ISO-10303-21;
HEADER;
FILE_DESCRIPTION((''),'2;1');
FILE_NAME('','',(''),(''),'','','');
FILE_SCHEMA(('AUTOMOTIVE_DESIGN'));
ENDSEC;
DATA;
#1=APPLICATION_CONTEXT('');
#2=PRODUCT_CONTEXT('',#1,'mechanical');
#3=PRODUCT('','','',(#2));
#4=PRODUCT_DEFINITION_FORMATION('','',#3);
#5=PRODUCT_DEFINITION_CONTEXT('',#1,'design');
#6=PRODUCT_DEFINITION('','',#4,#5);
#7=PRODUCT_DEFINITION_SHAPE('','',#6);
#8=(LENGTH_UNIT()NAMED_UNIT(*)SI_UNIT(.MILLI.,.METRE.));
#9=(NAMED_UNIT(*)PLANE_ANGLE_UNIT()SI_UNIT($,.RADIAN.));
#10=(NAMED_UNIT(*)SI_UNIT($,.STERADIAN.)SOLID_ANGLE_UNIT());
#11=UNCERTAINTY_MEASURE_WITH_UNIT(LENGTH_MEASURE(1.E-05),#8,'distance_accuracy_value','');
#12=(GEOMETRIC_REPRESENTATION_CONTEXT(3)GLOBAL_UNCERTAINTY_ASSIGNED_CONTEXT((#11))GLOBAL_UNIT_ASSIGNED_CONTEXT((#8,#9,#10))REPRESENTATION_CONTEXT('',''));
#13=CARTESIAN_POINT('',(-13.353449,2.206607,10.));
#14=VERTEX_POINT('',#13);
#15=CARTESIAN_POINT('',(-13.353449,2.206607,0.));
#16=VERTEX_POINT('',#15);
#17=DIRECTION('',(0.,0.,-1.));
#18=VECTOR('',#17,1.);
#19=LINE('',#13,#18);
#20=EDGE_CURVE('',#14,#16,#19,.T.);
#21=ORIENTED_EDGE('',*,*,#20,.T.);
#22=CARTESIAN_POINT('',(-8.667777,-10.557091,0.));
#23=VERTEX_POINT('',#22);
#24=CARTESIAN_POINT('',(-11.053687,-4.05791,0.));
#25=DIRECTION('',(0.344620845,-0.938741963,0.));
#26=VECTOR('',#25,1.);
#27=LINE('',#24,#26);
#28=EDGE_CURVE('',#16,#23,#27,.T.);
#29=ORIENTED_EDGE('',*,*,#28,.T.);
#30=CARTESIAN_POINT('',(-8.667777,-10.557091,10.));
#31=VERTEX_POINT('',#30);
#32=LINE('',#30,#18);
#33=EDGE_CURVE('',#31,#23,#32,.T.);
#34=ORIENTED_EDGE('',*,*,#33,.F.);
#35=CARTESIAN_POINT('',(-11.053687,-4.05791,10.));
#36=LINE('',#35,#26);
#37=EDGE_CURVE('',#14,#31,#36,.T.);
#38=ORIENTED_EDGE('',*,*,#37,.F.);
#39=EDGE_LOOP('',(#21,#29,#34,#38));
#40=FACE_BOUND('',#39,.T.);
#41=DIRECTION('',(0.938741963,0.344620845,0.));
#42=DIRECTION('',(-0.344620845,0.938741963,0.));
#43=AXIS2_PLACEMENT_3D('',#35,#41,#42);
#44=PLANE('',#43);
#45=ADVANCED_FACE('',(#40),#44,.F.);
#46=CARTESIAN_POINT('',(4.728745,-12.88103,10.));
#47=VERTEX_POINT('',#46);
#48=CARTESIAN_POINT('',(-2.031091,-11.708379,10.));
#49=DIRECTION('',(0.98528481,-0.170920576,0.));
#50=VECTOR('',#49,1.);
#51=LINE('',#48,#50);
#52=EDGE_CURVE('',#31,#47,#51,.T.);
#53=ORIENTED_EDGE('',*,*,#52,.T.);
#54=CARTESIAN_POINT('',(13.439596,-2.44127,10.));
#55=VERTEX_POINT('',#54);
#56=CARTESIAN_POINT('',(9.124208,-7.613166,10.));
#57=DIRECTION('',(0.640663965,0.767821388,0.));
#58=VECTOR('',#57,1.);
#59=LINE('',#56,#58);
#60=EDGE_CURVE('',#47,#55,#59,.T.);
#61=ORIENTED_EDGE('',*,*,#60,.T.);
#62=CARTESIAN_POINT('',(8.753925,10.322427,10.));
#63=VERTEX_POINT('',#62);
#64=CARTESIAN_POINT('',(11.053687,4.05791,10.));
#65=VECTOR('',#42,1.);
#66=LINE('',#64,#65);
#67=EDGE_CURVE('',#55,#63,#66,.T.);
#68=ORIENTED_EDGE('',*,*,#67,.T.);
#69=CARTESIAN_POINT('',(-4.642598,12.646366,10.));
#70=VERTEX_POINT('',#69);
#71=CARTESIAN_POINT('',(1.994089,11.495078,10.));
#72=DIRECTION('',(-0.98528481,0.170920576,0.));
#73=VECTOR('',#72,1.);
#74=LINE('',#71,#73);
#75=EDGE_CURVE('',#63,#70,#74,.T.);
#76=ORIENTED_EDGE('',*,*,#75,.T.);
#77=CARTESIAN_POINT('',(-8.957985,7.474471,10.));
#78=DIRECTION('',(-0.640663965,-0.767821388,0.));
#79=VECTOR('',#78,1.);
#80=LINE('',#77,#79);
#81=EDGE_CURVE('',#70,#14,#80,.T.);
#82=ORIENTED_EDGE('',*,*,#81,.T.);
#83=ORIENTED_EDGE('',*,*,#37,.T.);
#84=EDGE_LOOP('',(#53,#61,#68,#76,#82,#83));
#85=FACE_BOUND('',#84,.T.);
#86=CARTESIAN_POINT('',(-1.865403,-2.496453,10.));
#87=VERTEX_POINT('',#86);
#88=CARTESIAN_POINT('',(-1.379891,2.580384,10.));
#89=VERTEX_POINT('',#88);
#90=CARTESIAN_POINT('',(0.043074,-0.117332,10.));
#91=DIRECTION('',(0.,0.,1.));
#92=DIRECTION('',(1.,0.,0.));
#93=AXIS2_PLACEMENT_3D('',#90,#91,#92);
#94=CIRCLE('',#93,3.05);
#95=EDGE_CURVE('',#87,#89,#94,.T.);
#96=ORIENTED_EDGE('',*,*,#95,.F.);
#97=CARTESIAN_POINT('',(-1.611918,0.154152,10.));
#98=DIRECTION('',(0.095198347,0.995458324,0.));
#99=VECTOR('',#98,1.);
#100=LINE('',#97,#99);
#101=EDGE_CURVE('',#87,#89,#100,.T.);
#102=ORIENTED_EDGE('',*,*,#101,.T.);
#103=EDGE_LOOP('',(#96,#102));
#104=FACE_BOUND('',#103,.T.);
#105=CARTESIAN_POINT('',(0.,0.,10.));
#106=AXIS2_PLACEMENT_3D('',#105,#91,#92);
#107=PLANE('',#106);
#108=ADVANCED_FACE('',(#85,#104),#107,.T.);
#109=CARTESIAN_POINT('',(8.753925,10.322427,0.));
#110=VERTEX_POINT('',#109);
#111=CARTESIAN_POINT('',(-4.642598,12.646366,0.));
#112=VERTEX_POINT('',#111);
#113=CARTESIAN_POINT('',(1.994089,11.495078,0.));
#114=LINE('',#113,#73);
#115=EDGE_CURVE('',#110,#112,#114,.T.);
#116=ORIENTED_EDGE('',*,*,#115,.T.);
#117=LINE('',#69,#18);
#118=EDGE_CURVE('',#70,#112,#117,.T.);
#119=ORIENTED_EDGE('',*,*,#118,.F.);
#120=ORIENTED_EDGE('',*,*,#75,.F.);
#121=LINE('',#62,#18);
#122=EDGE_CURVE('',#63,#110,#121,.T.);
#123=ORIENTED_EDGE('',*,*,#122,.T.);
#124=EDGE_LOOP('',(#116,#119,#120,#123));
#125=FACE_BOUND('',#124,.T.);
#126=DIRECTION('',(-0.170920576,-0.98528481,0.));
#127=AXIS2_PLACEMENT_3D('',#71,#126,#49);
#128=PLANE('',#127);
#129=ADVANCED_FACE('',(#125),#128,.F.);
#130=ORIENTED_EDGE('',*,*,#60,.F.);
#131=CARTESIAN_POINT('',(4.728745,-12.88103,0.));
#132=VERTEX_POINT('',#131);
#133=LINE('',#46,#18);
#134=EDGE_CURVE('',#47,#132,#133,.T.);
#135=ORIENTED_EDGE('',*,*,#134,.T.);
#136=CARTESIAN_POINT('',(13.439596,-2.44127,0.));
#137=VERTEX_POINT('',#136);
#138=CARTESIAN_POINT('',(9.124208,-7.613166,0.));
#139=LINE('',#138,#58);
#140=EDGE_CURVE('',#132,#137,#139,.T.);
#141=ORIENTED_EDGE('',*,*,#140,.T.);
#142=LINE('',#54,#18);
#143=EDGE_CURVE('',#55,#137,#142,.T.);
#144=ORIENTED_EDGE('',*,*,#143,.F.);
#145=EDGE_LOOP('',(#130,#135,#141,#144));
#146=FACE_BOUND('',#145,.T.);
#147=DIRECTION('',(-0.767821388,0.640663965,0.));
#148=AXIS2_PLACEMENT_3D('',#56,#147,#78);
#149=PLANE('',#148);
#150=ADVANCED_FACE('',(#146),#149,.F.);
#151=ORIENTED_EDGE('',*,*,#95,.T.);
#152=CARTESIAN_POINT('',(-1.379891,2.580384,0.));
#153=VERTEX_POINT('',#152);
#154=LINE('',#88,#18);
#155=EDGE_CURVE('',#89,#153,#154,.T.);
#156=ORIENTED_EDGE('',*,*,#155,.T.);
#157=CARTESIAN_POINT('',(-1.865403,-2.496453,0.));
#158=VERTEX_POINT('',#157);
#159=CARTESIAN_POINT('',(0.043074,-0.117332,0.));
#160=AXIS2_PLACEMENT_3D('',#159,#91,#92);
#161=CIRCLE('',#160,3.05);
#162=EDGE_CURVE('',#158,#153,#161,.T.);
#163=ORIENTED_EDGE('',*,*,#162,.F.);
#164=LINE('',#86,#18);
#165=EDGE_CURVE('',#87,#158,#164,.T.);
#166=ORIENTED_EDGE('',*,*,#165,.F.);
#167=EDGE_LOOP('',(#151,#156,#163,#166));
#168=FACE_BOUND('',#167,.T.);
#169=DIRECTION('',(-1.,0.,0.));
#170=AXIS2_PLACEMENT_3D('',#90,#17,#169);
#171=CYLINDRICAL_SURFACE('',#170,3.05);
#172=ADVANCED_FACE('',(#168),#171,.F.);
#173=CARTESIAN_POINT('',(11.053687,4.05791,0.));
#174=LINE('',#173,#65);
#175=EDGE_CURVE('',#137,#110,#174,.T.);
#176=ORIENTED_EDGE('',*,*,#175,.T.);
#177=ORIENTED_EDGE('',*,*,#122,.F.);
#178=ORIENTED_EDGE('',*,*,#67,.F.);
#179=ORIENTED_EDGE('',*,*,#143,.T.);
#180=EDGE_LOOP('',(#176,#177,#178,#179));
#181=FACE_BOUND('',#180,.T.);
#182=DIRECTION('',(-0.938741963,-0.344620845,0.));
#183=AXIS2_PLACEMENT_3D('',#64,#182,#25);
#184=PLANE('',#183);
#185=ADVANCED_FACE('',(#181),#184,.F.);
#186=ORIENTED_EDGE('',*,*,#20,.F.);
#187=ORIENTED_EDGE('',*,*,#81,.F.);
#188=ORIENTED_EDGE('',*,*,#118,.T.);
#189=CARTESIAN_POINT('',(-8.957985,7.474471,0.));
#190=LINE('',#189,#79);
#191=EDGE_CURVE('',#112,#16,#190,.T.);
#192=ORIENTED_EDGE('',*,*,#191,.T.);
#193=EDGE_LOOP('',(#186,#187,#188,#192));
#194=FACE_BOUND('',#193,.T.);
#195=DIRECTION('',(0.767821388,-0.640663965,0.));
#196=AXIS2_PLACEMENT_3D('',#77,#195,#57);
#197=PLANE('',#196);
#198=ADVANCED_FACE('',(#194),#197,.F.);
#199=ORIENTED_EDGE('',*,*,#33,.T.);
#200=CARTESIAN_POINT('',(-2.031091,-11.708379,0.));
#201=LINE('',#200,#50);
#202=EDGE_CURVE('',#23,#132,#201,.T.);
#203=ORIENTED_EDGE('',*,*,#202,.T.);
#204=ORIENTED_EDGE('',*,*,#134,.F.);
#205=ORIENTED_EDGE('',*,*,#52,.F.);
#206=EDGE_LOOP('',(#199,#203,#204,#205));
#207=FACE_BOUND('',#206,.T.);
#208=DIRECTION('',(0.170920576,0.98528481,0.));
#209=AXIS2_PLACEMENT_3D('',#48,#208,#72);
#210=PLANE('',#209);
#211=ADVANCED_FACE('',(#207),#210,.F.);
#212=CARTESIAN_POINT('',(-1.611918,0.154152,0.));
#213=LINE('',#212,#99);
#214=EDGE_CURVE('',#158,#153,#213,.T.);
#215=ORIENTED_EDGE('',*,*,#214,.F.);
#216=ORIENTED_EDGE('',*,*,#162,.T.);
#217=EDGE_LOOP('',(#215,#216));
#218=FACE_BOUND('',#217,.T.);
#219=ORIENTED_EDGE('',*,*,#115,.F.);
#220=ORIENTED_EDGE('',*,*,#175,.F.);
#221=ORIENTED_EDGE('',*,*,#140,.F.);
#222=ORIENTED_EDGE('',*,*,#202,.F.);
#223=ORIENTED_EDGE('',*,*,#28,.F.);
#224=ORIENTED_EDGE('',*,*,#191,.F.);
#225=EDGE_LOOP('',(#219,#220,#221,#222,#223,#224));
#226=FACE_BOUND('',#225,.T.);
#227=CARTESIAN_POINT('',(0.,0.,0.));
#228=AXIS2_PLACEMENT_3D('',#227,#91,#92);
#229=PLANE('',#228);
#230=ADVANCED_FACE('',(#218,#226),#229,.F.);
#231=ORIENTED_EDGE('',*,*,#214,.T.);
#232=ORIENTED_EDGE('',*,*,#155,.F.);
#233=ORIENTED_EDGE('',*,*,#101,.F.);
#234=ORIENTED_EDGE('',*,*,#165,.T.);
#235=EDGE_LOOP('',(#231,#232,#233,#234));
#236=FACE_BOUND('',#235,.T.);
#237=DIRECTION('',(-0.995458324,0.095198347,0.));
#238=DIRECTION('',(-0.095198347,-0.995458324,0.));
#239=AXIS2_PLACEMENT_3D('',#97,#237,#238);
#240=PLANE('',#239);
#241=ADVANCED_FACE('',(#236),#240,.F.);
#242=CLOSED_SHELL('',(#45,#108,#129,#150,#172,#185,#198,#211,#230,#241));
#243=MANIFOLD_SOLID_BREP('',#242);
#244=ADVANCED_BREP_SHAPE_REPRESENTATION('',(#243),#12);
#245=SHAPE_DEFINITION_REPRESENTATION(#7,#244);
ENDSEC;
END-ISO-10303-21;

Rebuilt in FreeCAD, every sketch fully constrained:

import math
import FreeCAD as App
import Part
import Sketcher

V = App.Vector
Q = App.Units.Quantity


def add_polygon(sketch, points):
    """Adds a closed chain of lines whose ends are joined by coincident constraints."""
    first, n = sketch.GeometryCount, len(points)
    for a, b in zip(points, points[1:] + points[:1]):
        sketch.addGeometry(Part.LineSegment(App.Vector(*a, 0), App.Vector(*b, 0)), False)
    for i in range(n):
        sketch.addConstraint(Sketcher.Constraint("Coincident", first + i, 2, first + (i + 1) % n, 1))

doc = App.newDocument("Part")
body = doc.addObject("PartDesign::Body", "Body")

# Sketch on XY plane
sketch1 = body.newObject("Sketcher::SketchObject", "Sketch")
sketch1.AttachmentSupport = (doc.getObject("XY_Plane"), [""])
sketch1.MapMode = "FlatFace"
add_polygon(sketch1, [(13.439596, -2.44127), (8.753925, 10.322427), (-4.642598, 12.646366), (-13.353449, 2.206607), (-8.667777, -10.557091), (4.728745, -12.88103)])  # lines 0-5
sketch1.addGeometry(Part.ArcOfCircle(Part.Circle(V(0.043074, -0.117332, 0), V(0, 0, 1), 3.05), math.radians(-128.735779), math.radians(117.810307)), False)  # 6
sketch1.addGeometry(Part.LineSegment(V(-1.865403, -2.496453, 0), V(-1.379891, 2.580384, 0)), False)  # 7
sketch1.addConstraint([
    Sketcher.Constraint("Coincident", 6, 1, 7, 1),
    Sketcher.Constraint("Coincident", 7, 2, 6, 2),
    Sketcher.Constraint("Parallel", 0, 3),
    Sketcher.Constraint("Parallel", 1, 4),
    Sketcher.Constraint("Parallel", 2, 5),
    Sketcher.Constraint("Equal", 0, 1),
    Sketcher.Constraint("Equal", 1, 2),
    Sketcher.Constraint("Equal", 2, 3),
    Sketcher.Constraint("Radius", 6, Q("3.05 mm")),
    Sketcher.Constraint("Distance", 7, Q("5.1 mm")),
    Sketcher.Constraint("DistanceX", 6, 1, 5, 2, Q("15.304998 mm")),
    Sketcher.Constraint("Distance", 0, Q("13.596599 mm")),
    Sketcher.Constraint("DistanceX", 3, 2, 0, 2, Q("17.421702 mm")),
    Sketcher.Constraint("DistanceY", 6, 3, -1, 1, Q("0.117332 mm")),
    Sketcher.Constraint("DistanceX", 2, 2, -1, 1, Q("13.353449 mm")),
    Sketcher.Constraint("DistanceY", 3, 2, -1, 1, Q("10.557091 mm")),
    Sketcher.Constraint("DistanceY", 4, 2, -1, 1, Q("12.88103 mm")),
    Sketcher.Constraint("DistanceY", 5, 2, -1, 1, Q("2.44127 mm")),
    Sketcher.Constraint("DistanceX", 7, 2, -1, 1, Q("1.379891 mm")),
])
pad1 = body.newObject("PartDesign::Pad", "Pad")
pad1.Profile = sketch1
pad1.Length = 10

doc.recompute()
